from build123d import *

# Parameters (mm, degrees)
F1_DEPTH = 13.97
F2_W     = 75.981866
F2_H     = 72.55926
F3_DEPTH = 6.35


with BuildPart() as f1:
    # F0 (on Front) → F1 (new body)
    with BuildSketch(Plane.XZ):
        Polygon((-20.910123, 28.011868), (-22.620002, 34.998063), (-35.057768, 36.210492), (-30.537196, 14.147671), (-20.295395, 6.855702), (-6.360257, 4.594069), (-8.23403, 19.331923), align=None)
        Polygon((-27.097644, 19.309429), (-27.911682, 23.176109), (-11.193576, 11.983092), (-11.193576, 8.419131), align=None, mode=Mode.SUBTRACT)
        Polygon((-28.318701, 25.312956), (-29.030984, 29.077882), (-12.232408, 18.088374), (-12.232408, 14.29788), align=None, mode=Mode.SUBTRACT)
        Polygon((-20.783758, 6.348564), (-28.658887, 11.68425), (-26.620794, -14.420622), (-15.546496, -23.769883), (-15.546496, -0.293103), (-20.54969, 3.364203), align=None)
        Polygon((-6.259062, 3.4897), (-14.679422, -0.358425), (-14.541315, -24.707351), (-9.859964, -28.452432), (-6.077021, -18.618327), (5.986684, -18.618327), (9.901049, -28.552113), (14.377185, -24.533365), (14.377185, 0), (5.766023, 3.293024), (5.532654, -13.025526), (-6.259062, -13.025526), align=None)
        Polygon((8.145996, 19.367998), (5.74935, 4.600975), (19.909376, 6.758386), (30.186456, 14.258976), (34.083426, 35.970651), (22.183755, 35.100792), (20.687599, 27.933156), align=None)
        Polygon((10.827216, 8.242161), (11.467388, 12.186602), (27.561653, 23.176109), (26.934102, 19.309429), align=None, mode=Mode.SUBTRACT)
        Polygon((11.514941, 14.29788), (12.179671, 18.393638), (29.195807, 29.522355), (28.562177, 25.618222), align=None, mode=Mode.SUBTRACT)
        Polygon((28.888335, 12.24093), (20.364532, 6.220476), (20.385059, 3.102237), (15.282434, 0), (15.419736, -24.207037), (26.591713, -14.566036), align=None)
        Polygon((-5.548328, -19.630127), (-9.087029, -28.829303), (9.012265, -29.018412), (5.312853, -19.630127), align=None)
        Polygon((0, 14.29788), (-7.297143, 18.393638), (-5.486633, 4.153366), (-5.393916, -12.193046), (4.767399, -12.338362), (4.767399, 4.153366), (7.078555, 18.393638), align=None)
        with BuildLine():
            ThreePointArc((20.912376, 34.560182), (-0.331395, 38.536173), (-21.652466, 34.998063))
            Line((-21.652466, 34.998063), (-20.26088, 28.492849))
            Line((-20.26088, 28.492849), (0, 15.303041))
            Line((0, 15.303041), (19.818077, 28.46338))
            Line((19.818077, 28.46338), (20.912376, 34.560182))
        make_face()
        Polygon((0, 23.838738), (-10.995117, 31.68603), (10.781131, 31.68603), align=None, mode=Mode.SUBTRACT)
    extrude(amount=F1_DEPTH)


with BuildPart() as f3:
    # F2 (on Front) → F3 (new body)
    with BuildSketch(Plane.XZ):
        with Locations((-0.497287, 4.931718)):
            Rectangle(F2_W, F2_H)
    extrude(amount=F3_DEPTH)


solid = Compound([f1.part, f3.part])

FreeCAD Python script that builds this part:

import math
import FreeCAD as App
import Part
import Sketcher
Q = App.Units.Quantity


def add_polygon(sketch, points):
    """Adds a closed chain of lines whose ends are joined by coincident constraints."""
    first, n = sketch.GeometryCount, len(points)
    for a, b in zip(points, points[1:] + points[:1]):
        sketch.addGeometry(Part.LineSegment(App.Vector(*a, 0), App.Vector(*b, 0)), False)
    for i in range(n):
        sketch.addConstraint(Sketcher.Constraint("Coincident", first + i, 2, first + (i + 1) % n, 1))

doc = App.newDocument("Part")
body = doc.addObject("PartDesign::Body", "Body")
body.AllowCompound = True

sketch1 = body.newObject("Sketcher::SketchObject", "Sketch")
sketch1.AttachmentSupport = (doc.getObject("XZ_Plane"), [""])
sketch1.MapMode = "FlatFace"
add_polygon(sketch1, [(-20.9, 28), (-22.6, 35), (-35.1, 36.2), (-30.5, 14.1), (-20.3, 6.9), (-6.4, 4.6), (-8.2, 19.3)])
add_polygon(sketch1, [(-11.2, 8.4), (-27.1, 19.3), (-27.9, 23.2), (-11.2, 12)])
add_polygon(sketch1, [(-12.2, 14.3), (-28.3, 25.3), (-29, 29.1), (-12.2, 18.1)])
add_polygon(sketch1, [(-20.8, 6.3), (-28.7, 11.7), (-26.6, -14.4), (-15.5, -23.8), (-15.5, -0.3), (-20.5, 3.4)])
add_polygon(sketch1, [(-6.3, 3.5), (-14.7, -0.4), (-14.5, -24.7), (-9.9, -28.5), (-6.1, -18.6), (6, -18.6), (9.9, -28.6), (14.4, -24.5), (14.4, 0), (5.8, 3.3), (5.5, -13), (-6.3, -13)])
add_polygon(sketch1, [(8.1, 19.4), (5.7, 4.6), (19.9, 6.8), (30.2, 14.3), (34.1, 36), (22.2, 35.1), (20.7, 27.9)])
add_polygon(sketch1, [(26.9, 19.3), (10.8, 8.2), (11.5, 12.2), (27.6, 23.2)])
add_polygon(sketch1, [(28.6, 25.6), (11.5, 14.3), (12.2, 18.4), (29.2, 29.5)])
add_polygon(sketch1, [(28.9, 12.2), (20.4, 6.2), (20.4, 3.1), (15.3, 0), (15.4, -24.2), (26.6, -14.6)])
add_polygon(sketch1, [(-5.5, -19.6), (-9.1, -28.8), (9, -29), (5.3, -19.6)])
add_polygon(sketch1, [(0, 14.3), (-7.3, 18.4), (-5.5, 4.2), (-5.4, -12.2), (4.8, -12.3), (4.8, 4.2), (7.1, 18.4)])
sketch1.addGeometry(Part.ArcOfCircle(Part.Circle(App.Vector(-1, -23.6, 0), App.Vector(0, 0, 1), 62.2), math.radians(69), math.radians(109)), False)
sketch1.addGeometry(Part.LineSegment(App.Vector(-21.7, 35, 0), App.Vector(-20.3, 28.5, 0)), False)
sketch1.addGeometry(Part.LineSegment(App.Vector(-20.3, 28.5, 0), App.Vector(0, 15.3, 0)), False)
sketch1.addGeometry(Part.LineSegment(App.Vector(0, 15.3, 0), App.Vector(19.8, 28.5, 0)), False)
sketch1.addGeometry(Part.LineSegment(App.Vector(19.8, 28.5, 0), App.Vector(20.9, 34.6, 0)), False)
add_polygon(sketch1, [(10.8, 31.7), (0, 23.8), (-11, 31.7)])
sketch1.addConstraint([
    Sketcher.Constraint("Coincident", 65, 2, 66, 1),
    Sketcher.Constraint("Coincident", 66, 2, 67, 1),
    Sketcher.Constraint("Coincident", 67, 2, 68, 1),
    Sketcher.Constraint("Coincident", 68, 2, 69, 1),
    Sketcher.Constraint("Coincident", 69, 2, 65, 1),
    Sketcher.Constraint("Vertical", 10),
    Sketcher.Constraint("Vertical", 14),
    Sketcher.Constraint("Vertical", 18),
    Sketcher.Constraint("Horizontal", 25),
    Sketcher.Constraint("Vertical", 28),
    Sketcher.Constraint("Horizontal", 31),
    Sketcher.Constraint("Vertical", 32),
    Sketcher.Constraint("Horizontal", 57),
    Sketcher.Constraint("Vertical", 62),
    Sketcher.Constraint("Horizontal", 72),
    Sketcher.Constraint("PointOnObject", 28, 2, -1),
    Sketcher.Constraint("PointOnObject", 50, 2, -1),
    Sketcher.Constraint("PointOnObject", 64, 2, -2),
    Sketcher.Constraint("PointOnObject", 67, 2, -2),
    Sketcher.Constraint("PointOnObject", 70, 2, -2),
    Sketcher.Constraint("Parallel", 6, 7),
    Sketcher.Constraint("Parallel", 7, 11),
    Sketcher.Constraint("Perpendicular", 4, 33),
    Sketcher.Constraint("Parallel", 33, 41),
    Sketcher.Constraint("Parallel", 41, 43),
    Sketcher.Constraint("Parallel", 43, 45),
    Sketcher.Constraint("Parallel", 45, 47),
    Sketcher.Constraint("Parallel", 22, 51),
    Sketcher.Constraint("Parallel", 24, 54),
    Sketcher.Constraint("Parallel", 26, 56),
    Sketcher.Constraint("Parallel", 5, 59),
    Sketcher.Constraint("Parallel", 51, 60),
    Sketcher.Constraint("Perpendicular", 30, 61),
    Sketcher.Constraint("Parallel", 47, 63),
    Sketcher.Constraint("Parallel", 44, 68),
    Sketcher.Constraint("Parallel", 36, 69),
    Sketcher.Constraint("Horizontal", 8, 2, 42, 2),
    Sketcher.Constraint("Horizontal", 7, 2, 43, 2),
    Sketcher.Constraint("Horizontal", 14, 2, 44, 2),
    Sketcher.Constraint("Horizontal", 45, 2, 58, 2),
    Sketcher.Constraint("Horizontal", 59, 2, 62, 2),
    Sketcher.Constraint("Horizontal", 58, 2, 63, 2),
    Sketcher.Constraint("Horizontal", 44, 2, 64, 2),
    Sketcher.Constraint("Horizontal", 0, 2, 65, 2),
    Sketcher.Constraint("Radius", 65, 62.160674),
    Sketcher.Constraint("Distance", 0, 7.192399),
    Sketcher.Constraint("Distance", 13, 20.0739),
    Sketcher.Constraint("Distance", 21, 9.257998),
    Sketcher.Constraint("Distance", 35, 12.723098),
    Sketcher.Constraint("Distance", 63, 14.4266),
    Sketcher.Constraint("DistanceX", 57, 2, 57, 1, 10.861181),
    Sketcher.Constraint("DistanceX", 72, 1, 72, 2, 21.776248),
    Sketcher.Constraint("DistanceY", 10, 2, 10, 1, 3.563961),
    Sketcher.Constraint("DistanceY", 18, 1, 18, 2, 23.47678),
    Sketcher.Constraint("DistanceY", 62, 1, 62, 2, 16.491728),
    Sketcher.Constraint("DistanceX", 0, 2, -1, 1, 22.620002),
    Sketcher.Constraint("DistanceX", 11, 2, -1, 1, 28.318701),
    Sketcher.Constraint("DistanceY", -1, 1, 32, 2, 3.4897),
    Sketcher.Constraint("DistanceX", -1, 1, 38, 2, 20.687599),
    Sketcher.Constraint("DistanceY", -1, 1, 39, 2, 19.367998),
    Sketcher.Constraint("DistanceX", -1, 1, 43, 2, 26.934102),
    Sketcher.Constraint("DistanceX", -1, 1, 61, 2, 4.767399),
    Sketcher.Constraint("Distance", 1, 12.49672),
    Sketcher.Constraint("Distance", 3, 12.572482),
    Sketcher.Constraint("Distance", 7, 19.27532),
    Sketcher.Constraint("Distance", 8, 3.951439),
    Sketcher.Constraint("Distance", 11, 19.496172),
    Sketcher.Constraint("Distance", 12, 3.831712),
    Sketcher.Constraint("Distance", 16, 26.184311),
    Sketcher.Constraint("Distance", 17, 14.493059),
    Sketcher.Constraint("Distance", 26, 10.677189),
    Sketcher.Constraint("Distance", 27, 6.015491),
    Sketcher.Constraint("Distance", 30, 16.320219),
    Sketcher.Constraint("Distance", 36, 22.058631),
    Sketcher.Constraint("Distance", 37, 11.931422),
    Sketcher.Constraint("Distance", 39, 15.187289),
    Sketcher.Constraint("Distance", 42, 19.48832),
    Sketcher.Constraint("Distance", 45, 4.149349),
    Sketcher.Constraint("Distance", 48, 10.435568),
    Sketcher.Constraint("Distance", 52, 14.75676),
    Sketcher.Constraint("Distance", 54, 9.85633),
    Sketcher.Constraint("Distance", 55, 18.100282),
    Sketcher.Constraint("Distance", 64, 8.178091),
    Sketcher.Constraint("Distance", 68, 23.789718),
    Sketcher.Constraint("Distance", 69, 6.19423),
    Sketcher.Constraint("Distance", 71, 13.508242),
    Sketcher.Constraint("DistanceX", 25, 1, 25, 2, 12.063705),
    Sketcher.Constraint("DistanceX", 31, 2, 31, 1, 11.791716),
    Sketcher.Constraint("DistanceY", 14, 2, 14, 1, 3.790494),
    Sketcher.Constraint("DistanceY", 28, 1, 28, 2, 24.533365),
    Sketcher.Constraint("DistanceY", 32, 1, 32, 2, 16.515226),
    Sketcher.Constraint("DistanceX", 65, 3, -1, 1, 0.970832),
    Sketcher.Constraint("DistanceX", 1, 2, -1, 1, 35.057768),
    Sketcher.Constraint("DistanceY", -1, 1, 2, 2, 14.147671),
    Sketcher.Constraint("DistanceY", -1, 1, 4, 2, 4.594069),
    Sketcher.Constraint("DistanceX", 5, 2, -1, 1, 8.23403),
    Sketcher.Constraint("DistanceY", -1, 1, 6, 2, 28.011868),
    Sketcher.Constraint("DistanceY", -1, 1, 7, 2, 19.309429),
    Sketcher.Constraint("DistanceX", 8, 2, -1, 1, 27.911682),
    Sketcher.Constraint("DistanceY", -1, 1, 8, 2, 23.176109),
    Sketcher.Constraint("DistanceY", -1, 1, 9, 2, 11.983092),
    Sketcher.Constraint("DistanceY", -1, 1, 12, 2, 29.077882),
    Sketcher.Constraint("DistanceY", -1, 1, 15, 2, 11.68425),
    Sketcher.Constraint("DistanceX", 19, 2, -1, 1, 20.54969),
    Sketcher.Constraint("DistanceY", 22, 2, -1, 1, 24.707351),
    Sketcher.Constraint("DistanceX", 24, 2, -1, 1, 6.077021),
    Sketcher.Constraint("DistanceX", -1, 1, 26, 2, 9.901049),
    Sketcher.Constraint("DistanceX", -1, 1, 33, 2, 5.74935),
    Sketcher.Constraint("DistanceY", -1, 1, 36, 2, 35.970651),
    Sketcher.Constraint("DistanceY", -1, 1, 37, 2, 35.100792),
    Sketcher.Constraint("DistanceY", -1, 1, 40, 2, 8.242161),
    Sketcher.Constraint("DistanceX", -1, 1, 44, 2, 11.514941),
    Sketcher.Constraint("DistanceY", -1, 1, 47, 2, 25.618222),
    Sketcher.Constraint("DistanceX", -1, 1, 49, 2, 20.385059),
    Sketcher.Constraint("DistanceY", -1, 1, 53, 2, 12.24093),
    Sketcher.Constraint("DistanceX", 54, 2, -1, 1, 9.087029),
    Sketcher.Constraint("DistanceX", 66, 2, -1, 1, 20.26088),
    Sketcher.Constraint("DistanceY", -1, 1, 66, 2, 28.492849),
    Sketcher.Constraint("DistanceY", -1, 1, 67, 2, 15.303041),
    Sketcher.Constraint("DistanceY", -1, 1, 68, 2, 28.46338),
    Sketcher.Constraint("DistanceY", -1, 1, 69, 2, 34.560182),
    Sketcher.Constraint("DistanceY", -1, 1, 71, 2, 31.68603),
    Sketcher.Constraint("DistanceX", -1, 1, 72, 2, 10.781131),
    Sketcher.Constraint("Distance", 2, 22.521182),
    Sketcher.Constraint("Distance", 4, 14.117473),
    Sketcher.Constraint("Distance", 5, 14.856492),
    Sketcher.Constraint("Distance", 15, 9.512476),
    Sketcher.Constraint("Distance", 19, 6.197406),
    Sketcher.Constraint("Distance", 20, 2.993526),
    Sketcher.Constraint("Distance", 22, 24.349318),
    Sketcher.Constraint("Distance", 23, 5.995055),
    Sketcher.Constraint("Distance", 24, 10.536616),
    Sketcher.Constraint("Distance", 29, 9.219334),
    Sketcher.Constraint("Distance", 33, 14.960243),
    Sketcher.Constraint("Distance", 34, 14.323434),
    Sketcher.Constraint("Distance", 38, 7.322123),
    Sketcher.Constraint("Distance", 40, 19.542676),
    Sketcher.Constraint("Distance", 46, 20.332172),
    Sketcher.Constraint("Distance", 49, 3.118307),
    Sketcher.Constraint("Distance", 50, 5.971654),
    Sketcher.Constraint("Distance", 51, 24.207426),
    Sketcher.Constraint("Distance", 53, 26.905165),
    Sketcher.Constraint("Distance", 56, 10.090864),
    Sketcher.Constraint("Distance", 58, 8.368006),
    Sketcher.Constraint("Distance", 60, 16.346675),
    Sketcher.Constraint("Distance", 61, 10.162354),
    Sketcher.Constraint("DistanceX", 15, 2, -1, 1, 28.658887),
    Sketcher.Constraint("DistanceX", 16, 2, -1, 1, 26.620794),
    Sketcher.Constraint("DistanceX", 17, 2, -1, 1, 15.546496),
    Sketcher.Constraint("DistanceX", -1, 1, 48, 2, 20.364532),
    Sketcher.Constraint("DistanceY", -1, 1, 48, 2, 6.220476),
    Sketcher.Constraint("DistanceY", 54, 2, -1, 1, 28.829303),
])
pad1 = body.newObject("PartDesign::Pad", "Pad")
pad1.Profile = sketch1
pad1.Length = Q("0.55 in")
body2 = doc.addObject("PartDesign::Body", "Body001")

sketch2 = body2.newObject("Sketcher::SketchObject", "Sketch001")
sketch2.AttachmentSupport = (doc.getObject("XZ_Plane001"), [""])
sketch2.MapMode = "FlatFace"
add_polygon(sketch2, [(-38, 41), (-38, -31), (37, -31), (37, 41)])
sketch2.addConstraint([
    Sketcher.Constraint("Vertical", 0),
    Sketcher.Constraint("Horizontal", 1),
    Sketcher.Constraint("Vertical", 2),
    Sketcher.Constraint("Horizontal", 3),
    Sketcher.Constraint("DistanceY", 0, 2, 0, 1, 72.55926),
    Sketcher.Constraint("DistanceX", 1, 1, 1, 2, 75.981866),
    Sketcher.Constraint("DistanceX", 0, 2, -1, 1, 38.48822),
    Sketcher.Constraint("DistanceY", 0, 2, -1, 1, 31.347912),
])
pad2 = body2.newObject("PartDesign::Pad", "Pad001")
pad2.Profile = sketch2
pad2.Length = Q("0.25 in")

doc.recompute()
